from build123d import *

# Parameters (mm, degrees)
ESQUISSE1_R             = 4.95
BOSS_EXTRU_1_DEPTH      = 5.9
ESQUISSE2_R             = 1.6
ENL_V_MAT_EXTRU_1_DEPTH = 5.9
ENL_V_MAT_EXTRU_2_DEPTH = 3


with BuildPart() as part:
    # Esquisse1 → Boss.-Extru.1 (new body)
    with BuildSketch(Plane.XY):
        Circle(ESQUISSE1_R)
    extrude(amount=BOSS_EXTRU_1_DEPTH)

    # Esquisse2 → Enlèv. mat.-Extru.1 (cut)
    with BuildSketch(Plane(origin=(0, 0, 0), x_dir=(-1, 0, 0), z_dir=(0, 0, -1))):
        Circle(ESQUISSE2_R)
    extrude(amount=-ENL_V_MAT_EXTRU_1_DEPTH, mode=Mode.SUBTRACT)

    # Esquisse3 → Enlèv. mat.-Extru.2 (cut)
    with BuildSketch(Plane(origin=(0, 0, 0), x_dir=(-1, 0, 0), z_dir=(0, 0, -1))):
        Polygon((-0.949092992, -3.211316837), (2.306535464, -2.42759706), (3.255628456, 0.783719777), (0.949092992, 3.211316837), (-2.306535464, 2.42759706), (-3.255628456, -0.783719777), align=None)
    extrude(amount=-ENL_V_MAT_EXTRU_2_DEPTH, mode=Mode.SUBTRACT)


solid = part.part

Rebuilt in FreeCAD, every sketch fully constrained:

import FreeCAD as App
import Part
import Sketcher
from FreeCAD import Vector

doc = App.newDocument("Part")
body = doc.addObject("PartDesign::Body", "Body")

# Sketch on XY plane
sketch1 = doc.addObject("Sketcher::SketchObject", "Sketch")
body.addObject(sketch1)
sketch1.AttachmentSupport = (doc.XY_Plane, [""])
sketch1.MapMode = "FlatFace"
sketch1.addGeometry(Part.Circle(Vector(0, 0, 0), Vector(0, 0, 1), 5), False)
sketch1.addConstraint(Sketcher.Constraint("Coincident", 0, 3, -1, 1))
sketch1.addConstraint(Sketcher.Constraint("Diameter", 0, 9.9))
pad1 = doc.addObject("PartDesign::Pad", "Pad")
body.addObject(pad1)
pad1.Profile = sketch1
pad1.Length = 5.9

# Sketch on XY plane
sketch2 = doc.addObject("Sketcher::SketchObject", "Sketch001")
body.addObject(sketch2)
sketch2.AttachmentSupport = (doc.XY_Plane, [""])
sketch2.MapMode = "FlatFace"
sketch2.addGeometry(Part.Circle(Vector(0, 0, 0), Vector(0, 0, 1), 1.6), False)
sketch2.addConstraint(Sketcher.Constraint("Coincident", 0, 3, -1, 1))
sketch2.addConstraint(Sketcher.Constraint("Diameter", 0, 3.2))
pocket1 = doc.addObject("PartDesign::Pocket", "Pocket")
body.addObject(pocket1)
pocket1.Profile = sketch2
pocket1.Length = 5.9
pocket1.Reversed = True

# Sketch on XY plane
sketch3 = doc.addObject("Sketcher::SketchObject", "Sketch002")
body.addObject(sketch3)
sketch3.AttachmentSupport = (doc.XY_Plane, [""])
sketch3.MapMode = "FlatFace"
sketch3.addGeometry(Part.LineSegment(Vector(0.9, -3.2, 0), Vector(-2.3, -2.4, 0)), False)
sketch3.addGeometry(Part.LineSegment(Vector(-2.3, -2.4, 0), Vector(-3.3, 0.8, 0)), False)
sketch3.addGeometry(Part.LineSegment(Vector(-3.3, 0.8, 0), Vector(-0.9, 3.2, 0)), False)
sketch3.addGeometry(Part.LineSegment(Vector(-0.9, 3.2, 0), Vector(2.3, 2.4, 0)), False)
sketch3.addGeometry(Part.LineSegment(Vector(2.3, 2.4, 0), Vector(3.3, -0.8, 0)), False)
sketch3.addGeometry(Part.LineSegment(Vector(3.3, -0.8, 0), Vector(0.9, -3.2, 0)), False)
sketch3.addConstraint(Sketcher.Constraint("Coincident", 0, 2, 1, 1))
sketch3.addConstraint(Sketcher.Constraint("Coincident", 1, 2, 2, 1))
sketch3.addConstraint(Sketcher.Constraint("Coincident", 2, 2, 3, 1))
sketch3.addConstraint(Sketcher.Constraint("Coincident", 3, 2, 4, 1))
sketch3.addConstraint(Sketcher.Constraint("Coincident", 4, 2, 5, 1))
sketch3.addConstraint(Sketcher.Constraint("Coincident", 5, 2, 0, 1))
sketch3.addConstraint(Sketcher.Constraint("Symmetric", 0, 2, 3, 2, -1, 1))
sketch3.addConstraint(Sketcher.Constraint("Symmetric", 1, 2, 4, 2, -1, 1))
sketch3.addConstraint(Sketcher.Constraint("Symmetric", 2, 2, 5, 2, -1, 1))
sketch3.addConstraint(Sketcher.Constraint("Equal", 0, 1))
sketch3.addConstraint(Sketcher.Constraint("Equal", 1, 2))
sketch3.addConstraint(Sketcher.Constraint("Distance", 0, 3.348632))
sketch3.addConstraint(Sketcher.Constraint("DistanceX", 1, 2, -1, 1, 3.255628))
sketch3.addConstraint(Sketcher.Constraint("DistanceY", -1, 1, 1, 2, 0.78372))
sketch3.addConstraint(Sketcher.Constraint("DistanceX", 2, 2, 3, 2, 3.255628))
pocket2 = doc.addObject("PartDesign::Pocket", "Pocket001")
body.addObject(pocket2)
pocket2.Profile = sketch3
pocket2.Length = 3
pocket2.Reversed = True

doc.recompute()
